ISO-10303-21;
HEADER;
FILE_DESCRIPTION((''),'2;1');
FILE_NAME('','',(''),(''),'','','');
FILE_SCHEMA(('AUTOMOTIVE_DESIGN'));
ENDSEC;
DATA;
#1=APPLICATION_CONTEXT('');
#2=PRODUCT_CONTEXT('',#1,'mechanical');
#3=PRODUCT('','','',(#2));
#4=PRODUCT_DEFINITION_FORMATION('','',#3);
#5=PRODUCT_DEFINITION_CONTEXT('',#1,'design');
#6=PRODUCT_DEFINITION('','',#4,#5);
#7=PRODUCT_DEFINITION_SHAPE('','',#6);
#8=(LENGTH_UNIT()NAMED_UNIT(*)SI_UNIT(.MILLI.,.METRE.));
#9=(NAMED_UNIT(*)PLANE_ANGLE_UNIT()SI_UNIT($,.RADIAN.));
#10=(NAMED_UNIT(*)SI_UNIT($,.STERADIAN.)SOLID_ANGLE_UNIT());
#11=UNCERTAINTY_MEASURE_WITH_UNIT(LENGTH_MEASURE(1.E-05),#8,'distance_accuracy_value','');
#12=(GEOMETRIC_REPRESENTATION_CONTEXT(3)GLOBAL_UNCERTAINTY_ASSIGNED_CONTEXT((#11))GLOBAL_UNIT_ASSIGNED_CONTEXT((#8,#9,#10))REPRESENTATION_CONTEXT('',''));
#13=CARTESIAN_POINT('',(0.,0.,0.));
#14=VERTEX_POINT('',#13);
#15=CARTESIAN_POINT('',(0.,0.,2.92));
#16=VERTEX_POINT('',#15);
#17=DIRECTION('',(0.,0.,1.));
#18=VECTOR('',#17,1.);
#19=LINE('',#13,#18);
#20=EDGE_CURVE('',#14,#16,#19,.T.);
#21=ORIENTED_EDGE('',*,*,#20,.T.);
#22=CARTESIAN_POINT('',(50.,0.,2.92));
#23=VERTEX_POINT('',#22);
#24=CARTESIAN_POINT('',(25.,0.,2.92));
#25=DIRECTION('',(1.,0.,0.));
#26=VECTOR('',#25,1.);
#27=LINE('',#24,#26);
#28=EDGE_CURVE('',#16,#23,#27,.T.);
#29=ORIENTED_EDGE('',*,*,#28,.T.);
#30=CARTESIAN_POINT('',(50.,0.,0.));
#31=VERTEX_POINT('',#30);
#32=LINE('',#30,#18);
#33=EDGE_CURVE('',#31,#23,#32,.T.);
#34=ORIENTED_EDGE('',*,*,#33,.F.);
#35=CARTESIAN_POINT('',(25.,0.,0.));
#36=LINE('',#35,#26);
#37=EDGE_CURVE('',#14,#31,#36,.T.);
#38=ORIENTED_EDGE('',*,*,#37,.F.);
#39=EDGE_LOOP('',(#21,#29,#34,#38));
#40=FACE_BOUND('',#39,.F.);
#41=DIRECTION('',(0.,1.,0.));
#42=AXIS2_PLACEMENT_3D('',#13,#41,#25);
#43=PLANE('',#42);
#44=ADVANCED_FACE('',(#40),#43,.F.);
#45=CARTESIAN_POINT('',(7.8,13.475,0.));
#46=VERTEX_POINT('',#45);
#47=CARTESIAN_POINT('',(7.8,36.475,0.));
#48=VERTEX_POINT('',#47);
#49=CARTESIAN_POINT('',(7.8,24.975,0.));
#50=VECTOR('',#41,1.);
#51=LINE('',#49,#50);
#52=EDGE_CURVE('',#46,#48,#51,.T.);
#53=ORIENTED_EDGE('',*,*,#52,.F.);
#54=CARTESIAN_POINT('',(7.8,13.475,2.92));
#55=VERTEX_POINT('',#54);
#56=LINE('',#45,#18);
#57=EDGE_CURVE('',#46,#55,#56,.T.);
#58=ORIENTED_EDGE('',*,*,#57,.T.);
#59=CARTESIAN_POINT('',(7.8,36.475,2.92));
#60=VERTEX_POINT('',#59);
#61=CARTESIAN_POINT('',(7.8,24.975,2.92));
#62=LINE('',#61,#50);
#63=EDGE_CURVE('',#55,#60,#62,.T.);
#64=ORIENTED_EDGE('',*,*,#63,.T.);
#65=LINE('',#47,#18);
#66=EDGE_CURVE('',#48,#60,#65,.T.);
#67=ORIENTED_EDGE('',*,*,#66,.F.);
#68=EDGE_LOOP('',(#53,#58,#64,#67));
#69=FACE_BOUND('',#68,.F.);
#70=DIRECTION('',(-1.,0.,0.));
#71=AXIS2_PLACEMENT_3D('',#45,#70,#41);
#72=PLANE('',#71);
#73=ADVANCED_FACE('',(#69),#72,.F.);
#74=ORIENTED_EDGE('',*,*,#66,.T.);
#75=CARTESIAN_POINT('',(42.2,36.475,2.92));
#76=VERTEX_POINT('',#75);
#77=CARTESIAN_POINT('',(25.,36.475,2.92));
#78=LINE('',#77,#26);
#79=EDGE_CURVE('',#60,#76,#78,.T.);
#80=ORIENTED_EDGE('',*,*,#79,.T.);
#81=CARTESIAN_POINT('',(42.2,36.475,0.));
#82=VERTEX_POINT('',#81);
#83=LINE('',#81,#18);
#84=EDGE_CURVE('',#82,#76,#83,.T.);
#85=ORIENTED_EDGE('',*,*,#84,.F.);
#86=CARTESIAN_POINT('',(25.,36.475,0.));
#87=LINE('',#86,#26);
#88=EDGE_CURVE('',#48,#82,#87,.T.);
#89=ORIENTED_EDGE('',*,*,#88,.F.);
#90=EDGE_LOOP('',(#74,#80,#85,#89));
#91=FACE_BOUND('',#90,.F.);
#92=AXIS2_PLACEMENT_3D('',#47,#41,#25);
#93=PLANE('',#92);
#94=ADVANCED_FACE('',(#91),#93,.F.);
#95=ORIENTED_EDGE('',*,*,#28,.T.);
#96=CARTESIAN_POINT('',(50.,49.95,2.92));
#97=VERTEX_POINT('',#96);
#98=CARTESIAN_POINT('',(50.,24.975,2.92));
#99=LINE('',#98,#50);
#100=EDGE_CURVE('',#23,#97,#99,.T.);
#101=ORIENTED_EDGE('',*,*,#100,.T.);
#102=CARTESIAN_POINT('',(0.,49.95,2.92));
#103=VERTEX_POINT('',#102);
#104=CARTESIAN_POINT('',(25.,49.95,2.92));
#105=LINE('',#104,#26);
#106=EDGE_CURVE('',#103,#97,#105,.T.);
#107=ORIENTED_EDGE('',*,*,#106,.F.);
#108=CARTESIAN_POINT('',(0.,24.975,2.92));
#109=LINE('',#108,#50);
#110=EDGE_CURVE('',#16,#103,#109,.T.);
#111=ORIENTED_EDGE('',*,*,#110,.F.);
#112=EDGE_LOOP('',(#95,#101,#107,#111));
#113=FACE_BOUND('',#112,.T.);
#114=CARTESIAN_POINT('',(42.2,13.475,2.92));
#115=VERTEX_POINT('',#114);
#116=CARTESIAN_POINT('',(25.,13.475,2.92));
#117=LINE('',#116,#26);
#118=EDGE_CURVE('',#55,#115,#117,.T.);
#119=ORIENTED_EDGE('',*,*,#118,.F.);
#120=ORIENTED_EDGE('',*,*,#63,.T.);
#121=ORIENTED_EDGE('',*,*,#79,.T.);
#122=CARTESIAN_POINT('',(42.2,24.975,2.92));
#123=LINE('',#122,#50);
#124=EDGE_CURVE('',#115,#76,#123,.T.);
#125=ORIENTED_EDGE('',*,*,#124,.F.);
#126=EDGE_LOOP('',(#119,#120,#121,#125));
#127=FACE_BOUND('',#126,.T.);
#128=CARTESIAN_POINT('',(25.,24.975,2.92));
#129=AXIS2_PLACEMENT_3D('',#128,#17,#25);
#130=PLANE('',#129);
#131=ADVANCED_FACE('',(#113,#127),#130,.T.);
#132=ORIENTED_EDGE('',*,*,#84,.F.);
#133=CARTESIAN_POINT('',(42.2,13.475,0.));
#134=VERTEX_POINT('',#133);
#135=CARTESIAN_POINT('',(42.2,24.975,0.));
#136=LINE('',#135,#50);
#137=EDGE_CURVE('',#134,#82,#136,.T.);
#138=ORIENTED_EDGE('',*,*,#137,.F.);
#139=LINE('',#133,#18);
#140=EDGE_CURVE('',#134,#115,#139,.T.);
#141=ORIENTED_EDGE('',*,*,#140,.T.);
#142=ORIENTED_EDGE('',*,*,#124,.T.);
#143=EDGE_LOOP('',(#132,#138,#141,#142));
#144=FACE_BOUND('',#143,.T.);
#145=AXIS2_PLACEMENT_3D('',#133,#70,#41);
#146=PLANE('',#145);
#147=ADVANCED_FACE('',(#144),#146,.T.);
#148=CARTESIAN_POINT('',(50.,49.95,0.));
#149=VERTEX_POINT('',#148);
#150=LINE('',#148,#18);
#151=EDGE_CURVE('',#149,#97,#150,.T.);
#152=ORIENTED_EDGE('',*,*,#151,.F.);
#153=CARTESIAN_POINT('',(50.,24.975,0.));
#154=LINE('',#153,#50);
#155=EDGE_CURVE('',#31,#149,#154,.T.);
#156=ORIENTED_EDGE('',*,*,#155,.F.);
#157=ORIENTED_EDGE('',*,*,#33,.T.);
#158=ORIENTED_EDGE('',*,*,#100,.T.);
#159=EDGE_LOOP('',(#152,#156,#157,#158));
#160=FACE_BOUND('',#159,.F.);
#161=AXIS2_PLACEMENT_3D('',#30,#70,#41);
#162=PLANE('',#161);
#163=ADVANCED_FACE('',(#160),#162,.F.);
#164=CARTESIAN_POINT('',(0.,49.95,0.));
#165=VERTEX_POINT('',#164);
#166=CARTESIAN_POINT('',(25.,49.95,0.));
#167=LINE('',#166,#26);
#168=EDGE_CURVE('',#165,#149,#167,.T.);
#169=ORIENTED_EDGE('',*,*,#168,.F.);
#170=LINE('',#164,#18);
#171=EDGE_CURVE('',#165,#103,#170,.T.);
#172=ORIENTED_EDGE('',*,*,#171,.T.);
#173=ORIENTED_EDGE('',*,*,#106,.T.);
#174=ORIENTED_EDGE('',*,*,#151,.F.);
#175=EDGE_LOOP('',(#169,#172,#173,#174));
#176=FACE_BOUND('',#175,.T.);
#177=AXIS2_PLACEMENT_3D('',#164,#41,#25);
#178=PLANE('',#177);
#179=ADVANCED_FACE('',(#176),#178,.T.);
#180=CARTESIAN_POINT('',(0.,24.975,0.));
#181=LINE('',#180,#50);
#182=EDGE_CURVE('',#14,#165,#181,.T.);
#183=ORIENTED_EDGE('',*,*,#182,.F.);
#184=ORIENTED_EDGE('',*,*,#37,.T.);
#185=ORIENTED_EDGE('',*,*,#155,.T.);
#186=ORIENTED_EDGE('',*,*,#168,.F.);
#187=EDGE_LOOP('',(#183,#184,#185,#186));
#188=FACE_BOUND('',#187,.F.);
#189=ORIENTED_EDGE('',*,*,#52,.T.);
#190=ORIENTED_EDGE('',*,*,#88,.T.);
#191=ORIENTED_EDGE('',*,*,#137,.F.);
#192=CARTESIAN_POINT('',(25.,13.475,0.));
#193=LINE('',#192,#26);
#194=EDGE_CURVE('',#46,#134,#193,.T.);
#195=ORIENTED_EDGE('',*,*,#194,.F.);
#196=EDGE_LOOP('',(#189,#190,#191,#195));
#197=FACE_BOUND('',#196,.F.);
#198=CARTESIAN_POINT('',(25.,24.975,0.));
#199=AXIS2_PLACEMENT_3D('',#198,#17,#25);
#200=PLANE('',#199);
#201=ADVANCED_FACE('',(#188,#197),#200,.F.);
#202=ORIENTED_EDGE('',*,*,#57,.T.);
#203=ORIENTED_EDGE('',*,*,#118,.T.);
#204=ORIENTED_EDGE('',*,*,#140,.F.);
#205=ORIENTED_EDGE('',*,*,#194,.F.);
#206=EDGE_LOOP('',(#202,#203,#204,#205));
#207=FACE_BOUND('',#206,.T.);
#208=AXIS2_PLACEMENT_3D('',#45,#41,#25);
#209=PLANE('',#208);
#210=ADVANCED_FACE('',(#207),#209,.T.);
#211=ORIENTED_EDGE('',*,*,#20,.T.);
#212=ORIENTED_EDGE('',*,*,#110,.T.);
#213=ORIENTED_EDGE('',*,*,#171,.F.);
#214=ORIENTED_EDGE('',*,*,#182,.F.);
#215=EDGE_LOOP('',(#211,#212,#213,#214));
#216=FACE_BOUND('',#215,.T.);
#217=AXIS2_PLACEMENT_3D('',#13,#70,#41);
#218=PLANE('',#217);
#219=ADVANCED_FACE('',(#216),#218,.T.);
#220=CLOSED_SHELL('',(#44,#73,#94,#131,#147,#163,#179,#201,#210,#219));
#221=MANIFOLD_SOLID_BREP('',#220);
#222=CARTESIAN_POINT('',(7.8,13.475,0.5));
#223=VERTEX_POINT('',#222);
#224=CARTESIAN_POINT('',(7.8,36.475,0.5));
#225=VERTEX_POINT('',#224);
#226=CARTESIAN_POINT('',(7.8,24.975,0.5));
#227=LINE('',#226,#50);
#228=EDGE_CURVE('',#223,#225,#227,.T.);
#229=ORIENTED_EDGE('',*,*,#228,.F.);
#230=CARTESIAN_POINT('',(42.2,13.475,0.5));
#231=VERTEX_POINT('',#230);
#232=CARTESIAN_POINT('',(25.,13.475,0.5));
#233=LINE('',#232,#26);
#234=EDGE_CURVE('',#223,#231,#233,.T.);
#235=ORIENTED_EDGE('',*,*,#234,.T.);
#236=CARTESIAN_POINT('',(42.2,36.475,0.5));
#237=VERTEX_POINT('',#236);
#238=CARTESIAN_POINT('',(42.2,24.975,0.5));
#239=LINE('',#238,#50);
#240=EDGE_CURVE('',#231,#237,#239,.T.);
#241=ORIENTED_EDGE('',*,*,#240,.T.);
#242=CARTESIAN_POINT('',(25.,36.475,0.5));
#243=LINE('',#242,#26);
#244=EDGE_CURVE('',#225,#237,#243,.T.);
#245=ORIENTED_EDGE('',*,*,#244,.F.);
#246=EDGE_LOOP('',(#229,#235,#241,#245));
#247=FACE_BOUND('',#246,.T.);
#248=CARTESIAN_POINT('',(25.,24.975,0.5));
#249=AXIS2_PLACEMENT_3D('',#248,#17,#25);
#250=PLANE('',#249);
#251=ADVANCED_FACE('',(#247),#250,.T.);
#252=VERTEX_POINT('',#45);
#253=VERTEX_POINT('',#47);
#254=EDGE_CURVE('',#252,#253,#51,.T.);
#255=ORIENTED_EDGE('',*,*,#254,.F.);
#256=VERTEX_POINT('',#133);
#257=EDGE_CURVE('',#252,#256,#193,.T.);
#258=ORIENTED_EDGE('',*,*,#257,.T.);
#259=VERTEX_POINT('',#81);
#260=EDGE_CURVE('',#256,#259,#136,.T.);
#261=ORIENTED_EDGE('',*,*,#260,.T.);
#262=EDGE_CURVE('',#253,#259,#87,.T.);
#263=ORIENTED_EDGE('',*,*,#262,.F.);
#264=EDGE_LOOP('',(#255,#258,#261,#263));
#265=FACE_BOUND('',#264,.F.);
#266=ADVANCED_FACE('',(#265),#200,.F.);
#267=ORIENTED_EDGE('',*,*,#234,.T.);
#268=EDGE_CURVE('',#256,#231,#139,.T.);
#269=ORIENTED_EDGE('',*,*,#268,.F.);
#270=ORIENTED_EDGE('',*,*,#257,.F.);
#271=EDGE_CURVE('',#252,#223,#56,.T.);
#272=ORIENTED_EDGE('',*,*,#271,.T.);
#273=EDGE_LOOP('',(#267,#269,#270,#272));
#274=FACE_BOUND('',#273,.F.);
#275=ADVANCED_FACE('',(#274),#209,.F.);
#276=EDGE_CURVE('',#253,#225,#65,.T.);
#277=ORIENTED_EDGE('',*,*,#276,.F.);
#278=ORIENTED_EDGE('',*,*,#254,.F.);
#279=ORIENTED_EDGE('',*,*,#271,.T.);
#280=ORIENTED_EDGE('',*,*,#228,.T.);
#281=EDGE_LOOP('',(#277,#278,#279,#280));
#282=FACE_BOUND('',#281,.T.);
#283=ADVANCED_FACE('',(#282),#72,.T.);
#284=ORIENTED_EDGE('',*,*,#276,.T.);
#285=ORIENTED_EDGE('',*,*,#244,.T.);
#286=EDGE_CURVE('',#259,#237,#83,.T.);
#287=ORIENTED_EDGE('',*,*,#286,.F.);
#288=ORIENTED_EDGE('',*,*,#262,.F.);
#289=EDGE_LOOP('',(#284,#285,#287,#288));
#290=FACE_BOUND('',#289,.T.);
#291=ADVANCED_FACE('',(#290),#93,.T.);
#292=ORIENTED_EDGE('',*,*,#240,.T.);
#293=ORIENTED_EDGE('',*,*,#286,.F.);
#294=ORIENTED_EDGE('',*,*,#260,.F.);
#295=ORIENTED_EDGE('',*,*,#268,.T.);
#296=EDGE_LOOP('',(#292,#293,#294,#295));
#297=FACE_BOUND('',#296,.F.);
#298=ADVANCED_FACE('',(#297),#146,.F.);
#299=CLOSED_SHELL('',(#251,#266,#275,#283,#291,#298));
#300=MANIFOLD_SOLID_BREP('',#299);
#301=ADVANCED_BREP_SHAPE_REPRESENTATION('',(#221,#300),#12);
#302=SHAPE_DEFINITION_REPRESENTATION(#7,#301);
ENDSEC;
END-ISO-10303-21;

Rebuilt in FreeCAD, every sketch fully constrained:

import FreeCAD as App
import Part
import Sketcher

doc = App.newDocument("Part")
params = doc.addObject("Spreadsheet::Sheet", "Params")
for row, (alias, value) in enumerate([
    ("sketch1_width", "50 mm"),
    ("sketch1_height", "23 mm"),
    ("sketch1_width2", "34.4 mm"),
    ("sketch1_height2", "49.95 mm"),
    ("pad1_length", "2.92 mm"),
    ("sketch2_height", "23 mm"),
    ("sketch2_width", "34.4 mm"),
    ("pad2_length", "0.5 mm"),
], start=1):
    params.set(f"A{row}", alias)
    params.set(f"B{row}", "=" + value)
    params.setAlias(f"B{row}", alias)

body = doc.addObject("PartDesign::Body", "Body")

sketch1 = body.newObject("Sketcher::SketchObject", "Sketch")
sketch1.AttachmentSupport = (doc.getObject("XY_Plane"), [""])
sketch1.MapMode = "FlatFace"
sketch1.addGeometry(Part.LineSegment(App.Vector(0, 49.95, 0), App.Vector(0, 0, 0)), False)
sketch1.addGeometry(Part.LineSegment(App.Vector(0, 0, 0), App.Vector(50, 0, 0)), False)
sketch1.addGeometry(Part.LineSegment(App.Vector(50, 0, 0), App.Vector(50, 49.95, 0)), False)
sketch1.addGeometry(Part.LineSegment(App.Vector(50, 49.95, 0), App.Vector(0, 49.95, 0)), False)
sketch1.addGeometry(Part.LineSegment(App.Vector(42.2, 13.475, 0), App.Vector(7.8, 13.475, 0)), False)
sketch1.addGeometry(Part.LineSegment(App.Vector(7.8, 13.475, 0), App.Vector(7.8, 36.475, 0)), False)
sketch1.addGeometry(Part.LineSegment(App.Vector(7.8, 36.475, 0), App.Vector(42.2, 36.475, 0)), False)
sketch1.addGeometry(Part.LineSegment(App.Vector(42.2, 36.475, 0), App.Vector(42.2, 13.475, 0)), False)
sketch1.addConstraint(Sketcher.Constraint("Coincident", 0, 2, 1, 1))
sketch1.addConstraint(Sketcher.Constraint("Coincident", 1, 2, 2, 1))
sketch1.addConstraint(Sketcher.Constraint("Coincident", 2, 2, 3, 1))
sketch1.addConstraint(Sketcher.Constraint("Coincident", 3, 2, 0, 1))
sketch1.addConstraint(Sketcher.Constraint("Coincident", 4, 2, 5, 1))
sketch1.addConstraint(Sketcher.Constraint("Coincident", 5, 2, 6, 1))
sketch1.addConstraint(Sketcher.Constraint("Coincident", 6, 2, 7, 1))
sketch1.addConstraint(Sketcher.Constraint("Coincident", 7, 2, 4, 1))
sketch1.addConstraint(Sketcher.Constraint("Vertical", 0))
sketch1.addConstraint(Sketcher.Constraint("Horizontal", 1))
sketch1.addConstraint(Sketcher.Constraint("Vertical", 2))
sketch1.addConstraint(Sketcher.Constraint("Horizontal", 3))
sketch1.addConstraint(Sketcher.Constraint("Horizontal", 4))
sketch1.addConstraint(Sketcher.Constraint("Vertical", 5))
sketch1.addConstraint(Sketcher.Constraint("Horizontal", 6))
sketch1.addConstraint(Sketcher.Constraint("Vertical", 7))
sketch1.addConstraint(Sketcher.Constraint("Coincident", 0, 2, -1, 1))
sketch1.addConstraint(Sketcher.Constraint("DistanceX", 1, 1, 1, 2, 50.0))
sketch1.addConstraint(Sketcher.Constraint("DistanceY", 5, 1, 5, 2, 23.0))
sketch1.addConstraint(Sketcher.Constraint("DistanceX", 4, 2, 4, 1, 34.4))
sketch1.addConstraint(Sketcher.Constraint("DistanceY", 0, 2, 0, 1, 49.95))
sketch1.addConstraint(Sketcher.Constraint("DistanceX", -1, 1, 4, 2, 7.8))
sketch1.addConstraint(Sketcher.Constraint("DistanceY", -1, 1, 4, 2, 13.475))
sketch1.setExpression("Constraints[17]", "Params.sketch1_width")
sketch1.setExpression("Constraints[18]", "Params.sketch1_height")
sketch1.setExpression("Constraints[19]", "Params.sketch1_width2")
sketch1.setExpression("Constraints[20]", "Params.sketch1_height2")
pad1 = body.newObject("PartDesign::Pad", "Pad")
pad1.Profile = sketch1
pad1.setExpression("Length", "Params.pad1_length")
body2 = doc.addObject("PartDesign::Body", "Body001")

sketch2 = body2.newObject("Sketcher::SketchObject", "Sketch001")
sketch2.AttachmentSupport = (doc.getObject("XY_Plane001"), [""])
sketch2.MapMode = "FlatFace"
sketch2.addGeometry(Part.LineSegment(App.Vector(7.8, 36.475, 0), App.Vector(7.8, 13.475, 0)), False)
sketch2.addGeometry(Part.LineSegment(App.Vector(7.8, 13.475, 0), App.Vector(42.2, 13.475, 0)), False)
sketch2.addGeometry(Part.LineSegment(App.Vector(42.2, 13.475, 0), App.Vector(42.2, 36.475, 0)), False)
sketch2.addGeometry(Part.LineSegment(App.Vector(42.2, 36.475, 0), App.Vector(7.8, 36.475, 0)), False)
sketch2.addConstraint(Sketcher.Constraint("Coincident", 0, 2, 1, 1))
sketch2.addConstraint(Sketcher.Constraint("Coincident", 1, 2, 2, 1))
sketch2.addConstraint(Sketcher.Constraint("Coincident", 2, 2, 3, 1))
sketch2.addConstraint(Sketcher.Constraint("Coincident", 3, 2, 0, 1))
sketch2.addConstraint(Sketcher.Constraint("Vertical", 0))
sketch2.addConstraint(Sketcher.Constraint("Horizontal", 1))
sketch2.addConstraint(Sketcher.Constraint("Vertical", 2))
sketch2.addConstraint(Sketcher.Constraint("Horizontal", 3))
sketch2.addConstraint(Sketcher.Constraint("DistanceY", 0, 2, 0, 1, 23.0))
sketch2.addConstraint(Sketcher.Constraint("DistanceX", 1, 1, 1, 2, 34.4))
sketch2.addConstraint(Sketcher.Constraint("DistanceX", -1, 1, 0, 2, 7.8))
sketch2.addConstraint(Sketcher.Constraint("DistanceY", -1, 1, 0, 2, 13.475))
sketch2.setExpression("Constraints[8]", "Params.sketch2_height")
sketch2.setExpression("Constraints[9]", "Params.sketch2_width")
pad2 = body2.newObject("PartDesign::Pad", "Pad001")
pad2.Profile = sketch2
pad2.setExpression("Length", "Params.pad2_length")

doc.recompute()
